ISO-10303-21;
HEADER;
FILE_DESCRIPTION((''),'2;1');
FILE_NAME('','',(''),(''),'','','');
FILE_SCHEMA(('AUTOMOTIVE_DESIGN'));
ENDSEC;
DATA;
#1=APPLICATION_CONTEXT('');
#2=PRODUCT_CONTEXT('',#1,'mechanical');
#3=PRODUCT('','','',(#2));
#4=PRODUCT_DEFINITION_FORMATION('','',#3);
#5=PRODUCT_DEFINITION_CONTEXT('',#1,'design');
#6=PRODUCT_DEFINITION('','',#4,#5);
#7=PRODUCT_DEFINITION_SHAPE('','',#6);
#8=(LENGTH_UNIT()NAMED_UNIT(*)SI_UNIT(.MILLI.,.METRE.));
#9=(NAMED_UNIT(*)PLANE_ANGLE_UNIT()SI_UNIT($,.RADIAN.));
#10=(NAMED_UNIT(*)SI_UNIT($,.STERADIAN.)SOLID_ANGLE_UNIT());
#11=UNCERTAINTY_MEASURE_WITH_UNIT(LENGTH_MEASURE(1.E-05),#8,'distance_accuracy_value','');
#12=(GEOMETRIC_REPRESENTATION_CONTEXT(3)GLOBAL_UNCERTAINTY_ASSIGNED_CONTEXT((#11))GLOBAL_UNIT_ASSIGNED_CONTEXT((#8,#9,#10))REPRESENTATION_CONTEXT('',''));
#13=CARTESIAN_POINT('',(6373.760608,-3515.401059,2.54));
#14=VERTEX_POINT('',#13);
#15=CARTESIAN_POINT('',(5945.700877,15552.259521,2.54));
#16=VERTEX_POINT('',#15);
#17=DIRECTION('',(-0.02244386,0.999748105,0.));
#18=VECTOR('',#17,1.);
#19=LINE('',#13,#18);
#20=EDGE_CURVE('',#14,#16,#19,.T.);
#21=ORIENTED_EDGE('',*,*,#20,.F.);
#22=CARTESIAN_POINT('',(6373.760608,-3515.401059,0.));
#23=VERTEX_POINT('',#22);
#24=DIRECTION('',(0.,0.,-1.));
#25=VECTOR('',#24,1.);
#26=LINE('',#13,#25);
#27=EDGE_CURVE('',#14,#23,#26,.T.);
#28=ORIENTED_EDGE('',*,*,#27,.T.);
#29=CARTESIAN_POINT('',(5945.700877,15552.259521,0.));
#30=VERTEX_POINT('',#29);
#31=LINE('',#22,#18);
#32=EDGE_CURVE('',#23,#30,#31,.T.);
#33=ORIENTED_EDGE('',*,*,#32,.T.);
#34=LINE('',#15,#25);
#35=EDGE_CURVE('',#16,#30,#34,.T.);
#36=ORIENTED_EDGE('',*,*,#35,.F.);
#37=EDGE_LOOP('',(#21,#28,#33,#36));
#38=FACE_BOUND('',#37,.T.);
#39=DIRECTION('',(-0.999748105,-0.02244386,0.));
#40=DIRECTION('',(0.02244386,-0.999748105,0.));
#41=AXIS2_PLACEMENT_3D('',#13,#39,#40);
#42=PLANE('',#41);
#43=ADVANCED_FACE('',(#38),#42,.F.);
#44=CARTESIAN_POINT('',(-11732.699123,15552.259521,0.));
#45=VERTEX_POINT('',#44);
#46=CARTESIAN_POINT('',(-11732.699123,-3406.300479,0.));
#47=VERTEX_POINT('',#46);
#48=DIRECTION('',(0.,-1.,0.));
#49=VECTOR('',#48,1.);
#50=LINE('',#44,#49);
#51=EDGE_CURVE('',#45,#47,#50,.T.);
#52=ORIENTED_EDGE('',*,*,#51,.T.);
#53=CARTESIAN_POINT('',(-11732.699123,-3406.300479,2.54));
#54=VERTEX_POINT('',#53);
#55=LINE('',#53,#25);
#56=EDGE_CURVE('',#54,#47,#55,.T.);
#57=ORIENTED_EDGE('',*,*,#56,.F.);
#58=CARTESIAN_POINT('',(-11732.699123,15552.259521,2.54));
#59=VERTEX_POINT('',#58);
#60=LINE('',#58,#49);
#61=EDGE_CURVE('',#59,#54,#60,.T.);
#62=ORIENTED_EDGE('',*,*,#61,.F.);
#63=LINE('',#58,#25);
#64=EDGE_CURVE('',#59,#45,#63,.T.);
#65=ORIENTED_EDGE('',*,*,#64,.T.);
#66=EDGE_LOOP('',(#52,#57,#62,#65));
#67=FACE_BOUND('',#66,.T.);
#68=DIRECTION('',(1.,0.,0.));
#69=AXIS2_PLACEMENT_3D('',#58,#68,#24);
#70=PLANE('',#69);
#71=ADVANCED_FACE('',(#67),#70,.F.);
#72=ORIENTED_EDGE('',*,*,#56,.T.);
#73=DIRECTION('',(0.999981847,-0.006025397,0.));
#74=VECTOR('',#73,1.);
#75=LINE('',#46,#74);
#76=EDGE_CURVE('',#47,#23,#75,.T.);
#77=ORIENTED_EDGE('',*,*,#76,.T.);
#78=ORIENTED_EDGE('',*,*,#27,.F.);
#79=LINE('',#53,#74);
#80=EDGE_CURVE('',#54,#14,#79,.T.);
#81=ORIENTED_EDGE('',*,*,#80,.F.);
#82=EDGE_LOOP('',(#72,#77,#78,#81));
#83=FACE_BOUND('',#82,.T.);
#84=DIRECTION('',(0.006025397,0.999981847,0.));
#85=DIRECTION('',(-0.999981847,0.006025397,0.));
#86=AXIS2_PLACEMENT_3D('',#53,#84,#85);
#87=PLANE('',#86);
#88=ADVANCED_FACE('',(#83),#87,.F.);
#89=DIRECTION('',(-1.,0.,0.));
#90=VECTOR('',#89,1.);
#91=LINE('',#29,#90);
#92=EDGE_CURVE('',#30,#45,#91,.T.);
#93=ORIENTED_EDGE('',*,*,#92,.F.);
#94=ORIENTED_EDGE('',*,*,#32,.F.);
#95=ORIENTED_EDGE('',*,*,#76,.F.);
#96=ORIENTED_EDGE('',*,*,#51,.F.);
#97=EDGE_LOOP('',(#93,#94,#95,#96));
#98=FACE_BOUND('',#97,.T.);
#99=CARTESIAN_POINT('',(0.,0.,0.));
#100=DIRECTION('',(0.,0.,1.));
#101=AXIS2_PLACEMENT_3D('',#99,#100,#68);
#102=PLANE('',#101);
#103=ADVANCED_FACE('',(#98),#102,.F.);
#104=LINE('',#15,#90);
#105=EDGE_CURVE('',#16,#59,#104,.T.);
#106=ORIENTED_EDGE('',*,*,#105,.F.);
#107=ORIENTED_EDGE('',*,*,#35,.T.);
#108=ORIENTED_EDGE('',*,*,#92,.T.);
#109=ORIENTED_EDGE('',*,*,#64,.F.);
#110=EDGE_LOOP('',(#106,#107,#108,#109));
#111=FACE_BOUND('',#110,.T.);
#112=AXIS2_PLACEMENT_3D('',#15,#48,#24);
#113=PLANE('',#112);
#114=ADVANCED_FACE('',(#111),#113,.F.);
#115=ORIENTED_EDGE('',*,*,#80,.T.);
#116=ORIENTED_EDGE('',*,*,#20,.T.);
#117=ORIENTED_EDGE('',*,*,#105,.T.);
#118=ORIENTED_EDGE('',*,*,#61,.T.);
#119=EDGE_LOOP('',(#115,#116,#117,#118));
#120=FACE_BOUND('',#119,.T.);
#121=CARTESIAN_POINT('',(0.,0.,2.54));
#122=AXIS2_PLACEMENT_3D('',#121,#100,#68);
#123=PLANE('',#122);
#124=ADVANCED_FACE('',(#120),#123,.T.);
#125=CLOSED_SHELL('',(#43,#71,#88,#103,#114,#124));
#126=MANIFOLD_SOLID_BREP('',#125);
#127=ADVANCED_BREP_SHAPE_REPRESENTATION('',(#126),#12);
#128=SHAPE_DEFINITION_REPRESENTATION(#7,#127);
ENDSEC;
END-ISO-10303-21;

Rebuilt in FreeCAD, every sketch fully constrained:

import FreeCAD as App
import Part
import Sketcher
Q = App.Units.Quantity


def add_polygon(sketch, points):
    """Adds a closed chain of lines whose ends are joined by coincident constraints."""
    first, n = sketch.GeometryCount, len(points)
    for a, b in zip(points, points[1:] + points[:1]):
        sketch.addGeometry(Part.LineSegment(App.Vector(*a, 0), App.Vector(*b, 0)), False)
    for i in range(n):
        sketch.addConstraint(Sketcher.Constraint("Coincident", first + i, 2, first + (i + 1) % n, 1))

doc = App.newDocument("Part")
params = doc.addObject("Spreadsheet::Sheet", "Params")
for row, (alias, value) in enumerate([
    ("sketch1_width", "696 in"),
    ("sketch1_height", "746.4 in"),
    ("pad1_length", "0.1 in"),
], start=1):
    params.set(f"A{row}", alias)
    params.set(f"B{row}", "=" + value)
    params.setAlias(f"B{row}", alias)

body = doc.addObject("PartDesign::Body", "Body")

# Sketch on XY plane
sketch1 = body.newObject("Sketcher::SketchObject", "Sketch")
sketch1.AttachmentSupport = (doc.getObject("XY_Plane"), [""])
sketch1.MapMode = "FlatFace"
add_polygon(sketch1, [(-11733, 15552), (-11733, -3406), (6374, -3515), (5946, 15552)])  # lines 0-3
sketch1.addConstraint([
    Sketcher.Constraint("Vertical", 0),
    Sketcher.Constraint("Horizontal", 3),
    Sketcher.Constraint("DistanceX", 3, 2, 3, 1, Q("696 in")),
    Sketcher.Constraint("DistanceY", 0, 2, 0, 1, Q("746.4 in")),
    Sketcher.Constraint("Distance", 1, 18106.788422),
    Sketcher.Constraint("DistanceY", 0, 2, -1, 1, 3406.300479),
    Sketcher.Constraint("DistanceX", -1, 1, 1, 2, 6373.760608),
    Sketcher.Constraint("DistanceY", 1, 2, -1, 1, 3515.401059),
])
sketch1.setExpression("Constraints[6]", "Params.sketch1_width")
sketch1.setExpression("Constraints[7]", "Params.sketch1_height")
pad1 = body.newObject("PartDesign::Pad", "Pad")
pad1.Profile = sketch1
pad1.setExpression("Length", "Params.pad1_length")

doc.recompute()
